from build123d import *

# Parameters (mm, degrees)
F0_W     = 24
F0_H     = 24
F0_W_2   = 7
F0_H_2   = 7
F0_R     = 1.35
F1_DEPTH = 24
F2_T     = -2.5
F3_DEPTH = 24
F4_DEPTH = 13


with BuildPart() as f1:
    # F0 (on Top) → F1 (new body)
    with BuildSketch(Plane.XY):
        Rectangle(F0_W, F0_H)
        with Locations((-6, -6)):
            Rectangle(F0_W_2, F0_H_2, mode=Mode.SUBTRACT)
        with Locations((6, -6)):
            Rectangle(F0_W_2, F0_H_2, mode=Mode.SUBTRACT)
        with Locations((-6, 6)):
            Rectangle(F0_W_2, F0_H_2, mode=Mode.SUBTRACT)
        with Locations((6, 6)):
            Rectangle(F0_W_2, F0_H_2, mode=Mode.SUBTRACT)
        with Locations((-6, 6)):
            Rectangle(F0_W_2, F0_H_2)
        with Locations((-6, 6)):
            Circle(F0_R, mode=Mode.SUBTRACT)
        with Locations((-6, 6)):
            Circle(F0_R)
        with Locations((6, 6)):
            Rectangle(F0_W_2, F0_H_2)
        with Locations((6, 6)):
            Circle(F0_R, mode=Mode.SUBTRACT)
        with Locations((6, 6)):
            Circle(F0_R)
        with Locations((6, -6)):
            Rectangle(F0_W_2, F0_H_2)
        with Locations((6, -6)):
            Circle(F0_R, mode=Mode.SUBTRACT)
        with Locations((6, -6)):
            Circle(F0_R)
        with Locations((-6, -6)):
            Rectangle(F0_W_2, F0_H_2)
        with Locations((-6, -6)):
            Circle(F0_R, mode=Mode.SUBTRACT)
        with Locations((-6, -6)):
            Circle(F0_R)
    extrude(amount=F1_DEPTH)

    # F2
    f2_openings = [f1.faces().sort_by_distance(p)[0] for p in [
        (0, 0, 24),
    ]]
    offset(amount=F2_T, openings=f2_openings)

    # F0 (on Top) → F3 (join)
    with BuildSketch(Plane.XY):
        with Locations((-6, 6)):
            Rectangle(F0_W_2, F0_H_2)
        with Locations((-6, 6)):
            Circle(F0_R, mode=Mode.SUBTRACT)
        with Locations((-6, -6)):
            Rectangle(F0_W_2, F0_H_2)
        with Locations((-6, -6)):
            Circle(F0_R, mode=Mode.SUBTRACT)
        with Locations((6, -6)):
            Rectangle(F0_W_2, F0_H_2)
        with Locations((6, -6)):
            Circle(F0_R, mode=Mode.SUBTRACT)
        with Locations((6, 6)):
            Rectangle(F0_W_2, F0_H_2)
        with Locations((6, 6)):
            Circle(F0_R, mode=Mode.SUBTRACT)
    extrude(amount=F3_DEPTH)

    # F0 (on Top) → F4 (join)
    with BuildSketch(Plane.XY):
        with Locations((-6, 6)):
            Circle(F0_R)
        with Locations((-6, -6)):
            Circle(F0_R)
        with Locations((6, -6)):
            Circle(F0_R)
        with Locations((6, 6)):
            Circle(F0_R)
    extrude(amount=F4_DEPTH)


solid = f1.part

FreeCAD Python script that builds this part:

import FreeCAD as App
import Part
import Sketcher

V = App.Vector


def faces_at(feature, points):
    """Names of the faces that lie closest to the given points."""
    faces = feature.Shape.Faces
    near = lambda p: min(range(len(faces)), key=lambda i: faces[i].distToShape(Part.Vertex(*p))[0])
    return sorted({f"Face{near(p) + 1}" for p in points})

doc = App.newDocument("Part")
body = doc.addObject("PartDesign::Body", "Body")

sketch1 = body.newObject("Sketcher::SketchObject", "Sketch")
sketch1.AttachmentSupport = (doc.getObject("XY_Plane"), [""])
sketch1.MapMode = "FlatFace"
sketch1.addGeometry([
    Part.LineSegment(V(-12, 12, 0), V(-12, -12, 0)),
    Part.LineSegment(V(-12, -12, 0), V(12, -12, 0)),
    Part.LineSegment(V(12, -12, 0), V(12, 12, 0)),
    Part.LineSegment(V(12, 12, 0), V(-12, 12, 0)),
], False)
sketch1.addConstraint([
    Sketcher.Constraint("Coincident", 0, 2, 1, 1),
    Sketcher.Constraint("Coincident", 1, 2, 2, 1),
    Sketcher.Constraint("Coincident", 2, 2, 3, 1),
    Sketcher.Constraint("Coincident", 3, 2, 0, 1),
    Sketcher.Constraint("Vertical", 0),
    Sketcher.Constraint("Horizontal", 1),
    Sketcher.Constraint("Vertical", 2),
    Sketcher.Constraint("Horizontal", 3),
    Sketcher.Constraint("Symmetric", 0, 2, 2, 2, -1, 1),
    Sketcher.Constraint("Equal", 3, 0),
    Sketcher.Constraint("DistanceX", 1, 1, 1, 2, 24.0),
])
pad1 = body.newObject("PartDesign::Pad", "Pad")
pad1.Profile = sketch1
pad1.Length = 24
doc.recompute()

thickness = body.newObject("PartDesign::Thickness", "Thickness")
thickness.Base = (pad1, faces_at(pad1, [(0, 0, 24)]))
thickness.Value = 2.5
thickness.Reversed = True
thickness.Join = "Arc"

sketch2 = body.newObject("Sketcher::SketchObject", "Sketch001")
sketch2.AttachmentSupport = (doc.getObject("XY_Plane"), [""])
sketch2.MapMode = "FlatFace"
sketch2.addGeometry([
    Part.LineSegment(V(-9.5, 9.5, 0), V(-9.5, 2.5, 0)),
    Part.LineSegment(V(-9.5, 2.5, 0), V(-2.5, 2.5, 0)),
    Part.LineSegment(V(-2.5, 2.5, 0), V(-2.5, 9.5, 0)),
    Part.LineSegment(V(-2.5, 9.5, 0), V(-9.5, 9.5, 0)),
    Part.Circle(V(-6, 6, 0), V(0, 0, 1), 1.4),
    Part.LineSegment(V(-9.5, -2.5, 0), V(-9.5, -9.5, 0)),
    Part.LineSegment(V(-9.5, -9.5, 0), V(-2.5, -9.5, 0)),
    Part.LineSegment(V(-2.5, -9.5, 0), V(-2.5, -2.5, 0)),
    Part.LineSegment(V(-2.5, -2.5, 0), V(-9.5, -2.5, 0)),
    Part.Circle(V(-6, -6, 0), V(0, 0, 1), 1.4),
    Part.LineSegment(V(2.5, -2.5, 0), V(2.5, -9.5, 0)),
    Part.LineSegment(V(2.5, -9.5, 0), V(9.5, -9.5, 0)),
    Part.LineSegment(V(9.5, -9.5, 0), V(9.5, -2.5, 0)),
    Part.LineSegment(V(9.5, -2.5, 0), V(2.5, -2.5, 0)),
    Part.Circle(V(6, -6, 0), V(0, 0, 1), 1.4),
    Part.LineSegment(V(2.5, 9.5, 0), V(2.5, 2.5, 0)),
    Part.LineSegment(V(2.5, 2.5, 0), V(9.5, 2.5, 0)),
    Part.LineSegment(V(9.5, 2.5, 0), V(9.5, 9.5, 0)),
    Part.LineSegment(V(9.5, 9.5, 0), V(2.5, 9.5, 0)),
    Part.Circle(V(6, 6, 0), V(0, 0, 1), 1.4),
], False)
sketch2.addConstraint([
    Sketcher.Constraint("Coincident", 0, 2, 1, 1),
    Sketcher.Constraint("Coincident", 1, 2, 2, 1),
    Sketcher.Constraint("Coincident", 2, 2, 3, 1),
    Sketcher.Constraint("Coincident", 3, 2, 0, 1),
    Sketcher.Constraint("Coincident", 5, 2, 6, 1),
    Sketcher.Constraint("Coincident", 6, 2, 7, 1),
    Sketcher.Constraint("Coincident", 7, 2, 8, 1),
    Sketcher.Constraint("Coincident", 8, 2, 5, 1),
    Sketcher.Constraint("Coincident", 10, 2, 11, 1),
    Sketcher.Constraint("Coincident", 11, 2, 12, 1),
    Sketcher.Constraint("Coincident", 12, 2, 13, 1),
    Sketcher.Constraint("Coincident", 13, 2, 10, 1),
    Sketcher.Constraint("Coincident", 15, 2, 16, 1),
    Sketcher.Constraint("Coincident", 16, 2, 17, 1),
    Sketcher.Constraint("Coincident", 17, 2, 18, 1),
    Sketcher.Constraint("Coincident", 18, 2, 15, 1),
    Sketcher.Constraint("Vertical", 0),
    Sketcher.Constraint("Horizontal", 1),
    Sketcher.Constraint("Vertical", 2),
    Sketcher.Constraint("Horizontal", 3),
    Sketcher.Constraint("Vertical", 5),
    Sketcher.Constraint("Horizontal", 6),
    Sketcher.Constraint("Vertical", 7),
    Sketcher.Constraint("Horizontal", 8),
    Sketcher.Constraint("Vertical", 10),
    Sketcher.Constraint("Horizontal", 11),
    Sketcher.Constraint("Vertical", 12),
    Sketcher.Constraint("Horizontal", 13),
    Sketcher.Constraint("Vertical", 15),
    Sketcher.Constraint("Horizontal", 16),
    Sketcher.Constraint("Vertical", 17),
    Sketcher.Constraint("Horizontal", 18),
    Sketcher.Constraint("Equal", 4, 9),
    Sketcher.Constraint("Equal", 9, 14),
    Sketcher.Constraint("Equal", 14, 19),
    Sketcher.Constraint("Symmetric", 4, 3, 14, 3, -1, 1),
    Sketcher.Constraint("Symmetric", 9, 3, 19, 3, -1, 1),
    Sketcher.Constraint("Symmetric", 2, 2, 10, 2, -1, 1),
    Sketcher.Constraint("Symmetric", 0, 2, 12, 2, -1, 1),
    Sketcher.Constraint("Symmetric", 7, 2, 15, 2, -1, 1),
    Sketcher.Constraint("Symmetric", 5, 2, 17, 2, -1, 1),
    Sketcher.Constraint("Symmetric", 9, 3, 14, 3, -2),
    Sketcher.Constraint("Symmetric", 6, 2, 10, 2, -2),
    Sketcher.Constraint("Symmetric", 8, 2, 12, 2, -2),
    Sketcher.Constraint("Equal", 18, 0),
    Sketcher.Constraint("Diameter", 4, 2.7),
    Sketcher.Constraint("DistanceX", 1, 1, 1, 2, 7.0),
    Sketcher.Constraint("DistanceX", 4, 3, -1, 1, 6.0),
    Sketcher.Constraint("DistanceY", -1, 1, 4, 3, 6.0),
    Sketcher.Constraint("DistanceY", 5, 2, 0, 2, 12.0),
    Sketcher.Constraint("DistanceX", 6, 2, 10, 2, 5.0),
])
pad2 = body.newObject("PartDesign::Pad", "Pad001")
pad2.Profile = sketch2
pad2.Length = 24

sketch3 = body.newObject("Sketcher::SketchObject", "Sketch002")
sketch3.AttachmentSupport = (doc.getObject("XY_Plane"), [""])
sketch3.MapMode = "FlatFace"
sketch3.addGeometry([
    Part.Circle(V(-6, 6, 0), V(0, 0, 1), 1.4),
    Part.Circle(V(-6, -6, 0), V(0, 0, 1), 1.4),
    Part.Circle(V(6, -6, 0), V(0, 0, 1), 1.4),
    Part.Circle(V(6, 6, 0), V(0, 0, 1), 1.4),
], False)
sketch3.addConstraint([
    Sketcher.Constraint("Equal", 0, 1),
    Sketcher.Constraint("Equal", 1, 2),
    Sketcher.Constraint("Equal", 2, 3),
    Sketcher.Constraint("Symmetric", 0, 3, 2, 3, -1, 1),
    Sketcher.Constraint("Symmetric", 1, 3, 3, 3, -1, 1),
    Sketcher.Constraint("Symmetric", 1, 3, 2, 3, -2),
    Sketcher.Constraint("Diameter", 0, 2.7),
    Sketcher.Constraint("DistanceX", 0, 3, -1, 1, 6.0),
    Sketcher.Constraint("DistanceY", -1, 1, 0, 3, 6.0),
])
pad3 = body.newObject("PartDesign::Pad", "Pad002")
pad3.Profile = sketch3
pad3.Length = 13

doc.recompute()
